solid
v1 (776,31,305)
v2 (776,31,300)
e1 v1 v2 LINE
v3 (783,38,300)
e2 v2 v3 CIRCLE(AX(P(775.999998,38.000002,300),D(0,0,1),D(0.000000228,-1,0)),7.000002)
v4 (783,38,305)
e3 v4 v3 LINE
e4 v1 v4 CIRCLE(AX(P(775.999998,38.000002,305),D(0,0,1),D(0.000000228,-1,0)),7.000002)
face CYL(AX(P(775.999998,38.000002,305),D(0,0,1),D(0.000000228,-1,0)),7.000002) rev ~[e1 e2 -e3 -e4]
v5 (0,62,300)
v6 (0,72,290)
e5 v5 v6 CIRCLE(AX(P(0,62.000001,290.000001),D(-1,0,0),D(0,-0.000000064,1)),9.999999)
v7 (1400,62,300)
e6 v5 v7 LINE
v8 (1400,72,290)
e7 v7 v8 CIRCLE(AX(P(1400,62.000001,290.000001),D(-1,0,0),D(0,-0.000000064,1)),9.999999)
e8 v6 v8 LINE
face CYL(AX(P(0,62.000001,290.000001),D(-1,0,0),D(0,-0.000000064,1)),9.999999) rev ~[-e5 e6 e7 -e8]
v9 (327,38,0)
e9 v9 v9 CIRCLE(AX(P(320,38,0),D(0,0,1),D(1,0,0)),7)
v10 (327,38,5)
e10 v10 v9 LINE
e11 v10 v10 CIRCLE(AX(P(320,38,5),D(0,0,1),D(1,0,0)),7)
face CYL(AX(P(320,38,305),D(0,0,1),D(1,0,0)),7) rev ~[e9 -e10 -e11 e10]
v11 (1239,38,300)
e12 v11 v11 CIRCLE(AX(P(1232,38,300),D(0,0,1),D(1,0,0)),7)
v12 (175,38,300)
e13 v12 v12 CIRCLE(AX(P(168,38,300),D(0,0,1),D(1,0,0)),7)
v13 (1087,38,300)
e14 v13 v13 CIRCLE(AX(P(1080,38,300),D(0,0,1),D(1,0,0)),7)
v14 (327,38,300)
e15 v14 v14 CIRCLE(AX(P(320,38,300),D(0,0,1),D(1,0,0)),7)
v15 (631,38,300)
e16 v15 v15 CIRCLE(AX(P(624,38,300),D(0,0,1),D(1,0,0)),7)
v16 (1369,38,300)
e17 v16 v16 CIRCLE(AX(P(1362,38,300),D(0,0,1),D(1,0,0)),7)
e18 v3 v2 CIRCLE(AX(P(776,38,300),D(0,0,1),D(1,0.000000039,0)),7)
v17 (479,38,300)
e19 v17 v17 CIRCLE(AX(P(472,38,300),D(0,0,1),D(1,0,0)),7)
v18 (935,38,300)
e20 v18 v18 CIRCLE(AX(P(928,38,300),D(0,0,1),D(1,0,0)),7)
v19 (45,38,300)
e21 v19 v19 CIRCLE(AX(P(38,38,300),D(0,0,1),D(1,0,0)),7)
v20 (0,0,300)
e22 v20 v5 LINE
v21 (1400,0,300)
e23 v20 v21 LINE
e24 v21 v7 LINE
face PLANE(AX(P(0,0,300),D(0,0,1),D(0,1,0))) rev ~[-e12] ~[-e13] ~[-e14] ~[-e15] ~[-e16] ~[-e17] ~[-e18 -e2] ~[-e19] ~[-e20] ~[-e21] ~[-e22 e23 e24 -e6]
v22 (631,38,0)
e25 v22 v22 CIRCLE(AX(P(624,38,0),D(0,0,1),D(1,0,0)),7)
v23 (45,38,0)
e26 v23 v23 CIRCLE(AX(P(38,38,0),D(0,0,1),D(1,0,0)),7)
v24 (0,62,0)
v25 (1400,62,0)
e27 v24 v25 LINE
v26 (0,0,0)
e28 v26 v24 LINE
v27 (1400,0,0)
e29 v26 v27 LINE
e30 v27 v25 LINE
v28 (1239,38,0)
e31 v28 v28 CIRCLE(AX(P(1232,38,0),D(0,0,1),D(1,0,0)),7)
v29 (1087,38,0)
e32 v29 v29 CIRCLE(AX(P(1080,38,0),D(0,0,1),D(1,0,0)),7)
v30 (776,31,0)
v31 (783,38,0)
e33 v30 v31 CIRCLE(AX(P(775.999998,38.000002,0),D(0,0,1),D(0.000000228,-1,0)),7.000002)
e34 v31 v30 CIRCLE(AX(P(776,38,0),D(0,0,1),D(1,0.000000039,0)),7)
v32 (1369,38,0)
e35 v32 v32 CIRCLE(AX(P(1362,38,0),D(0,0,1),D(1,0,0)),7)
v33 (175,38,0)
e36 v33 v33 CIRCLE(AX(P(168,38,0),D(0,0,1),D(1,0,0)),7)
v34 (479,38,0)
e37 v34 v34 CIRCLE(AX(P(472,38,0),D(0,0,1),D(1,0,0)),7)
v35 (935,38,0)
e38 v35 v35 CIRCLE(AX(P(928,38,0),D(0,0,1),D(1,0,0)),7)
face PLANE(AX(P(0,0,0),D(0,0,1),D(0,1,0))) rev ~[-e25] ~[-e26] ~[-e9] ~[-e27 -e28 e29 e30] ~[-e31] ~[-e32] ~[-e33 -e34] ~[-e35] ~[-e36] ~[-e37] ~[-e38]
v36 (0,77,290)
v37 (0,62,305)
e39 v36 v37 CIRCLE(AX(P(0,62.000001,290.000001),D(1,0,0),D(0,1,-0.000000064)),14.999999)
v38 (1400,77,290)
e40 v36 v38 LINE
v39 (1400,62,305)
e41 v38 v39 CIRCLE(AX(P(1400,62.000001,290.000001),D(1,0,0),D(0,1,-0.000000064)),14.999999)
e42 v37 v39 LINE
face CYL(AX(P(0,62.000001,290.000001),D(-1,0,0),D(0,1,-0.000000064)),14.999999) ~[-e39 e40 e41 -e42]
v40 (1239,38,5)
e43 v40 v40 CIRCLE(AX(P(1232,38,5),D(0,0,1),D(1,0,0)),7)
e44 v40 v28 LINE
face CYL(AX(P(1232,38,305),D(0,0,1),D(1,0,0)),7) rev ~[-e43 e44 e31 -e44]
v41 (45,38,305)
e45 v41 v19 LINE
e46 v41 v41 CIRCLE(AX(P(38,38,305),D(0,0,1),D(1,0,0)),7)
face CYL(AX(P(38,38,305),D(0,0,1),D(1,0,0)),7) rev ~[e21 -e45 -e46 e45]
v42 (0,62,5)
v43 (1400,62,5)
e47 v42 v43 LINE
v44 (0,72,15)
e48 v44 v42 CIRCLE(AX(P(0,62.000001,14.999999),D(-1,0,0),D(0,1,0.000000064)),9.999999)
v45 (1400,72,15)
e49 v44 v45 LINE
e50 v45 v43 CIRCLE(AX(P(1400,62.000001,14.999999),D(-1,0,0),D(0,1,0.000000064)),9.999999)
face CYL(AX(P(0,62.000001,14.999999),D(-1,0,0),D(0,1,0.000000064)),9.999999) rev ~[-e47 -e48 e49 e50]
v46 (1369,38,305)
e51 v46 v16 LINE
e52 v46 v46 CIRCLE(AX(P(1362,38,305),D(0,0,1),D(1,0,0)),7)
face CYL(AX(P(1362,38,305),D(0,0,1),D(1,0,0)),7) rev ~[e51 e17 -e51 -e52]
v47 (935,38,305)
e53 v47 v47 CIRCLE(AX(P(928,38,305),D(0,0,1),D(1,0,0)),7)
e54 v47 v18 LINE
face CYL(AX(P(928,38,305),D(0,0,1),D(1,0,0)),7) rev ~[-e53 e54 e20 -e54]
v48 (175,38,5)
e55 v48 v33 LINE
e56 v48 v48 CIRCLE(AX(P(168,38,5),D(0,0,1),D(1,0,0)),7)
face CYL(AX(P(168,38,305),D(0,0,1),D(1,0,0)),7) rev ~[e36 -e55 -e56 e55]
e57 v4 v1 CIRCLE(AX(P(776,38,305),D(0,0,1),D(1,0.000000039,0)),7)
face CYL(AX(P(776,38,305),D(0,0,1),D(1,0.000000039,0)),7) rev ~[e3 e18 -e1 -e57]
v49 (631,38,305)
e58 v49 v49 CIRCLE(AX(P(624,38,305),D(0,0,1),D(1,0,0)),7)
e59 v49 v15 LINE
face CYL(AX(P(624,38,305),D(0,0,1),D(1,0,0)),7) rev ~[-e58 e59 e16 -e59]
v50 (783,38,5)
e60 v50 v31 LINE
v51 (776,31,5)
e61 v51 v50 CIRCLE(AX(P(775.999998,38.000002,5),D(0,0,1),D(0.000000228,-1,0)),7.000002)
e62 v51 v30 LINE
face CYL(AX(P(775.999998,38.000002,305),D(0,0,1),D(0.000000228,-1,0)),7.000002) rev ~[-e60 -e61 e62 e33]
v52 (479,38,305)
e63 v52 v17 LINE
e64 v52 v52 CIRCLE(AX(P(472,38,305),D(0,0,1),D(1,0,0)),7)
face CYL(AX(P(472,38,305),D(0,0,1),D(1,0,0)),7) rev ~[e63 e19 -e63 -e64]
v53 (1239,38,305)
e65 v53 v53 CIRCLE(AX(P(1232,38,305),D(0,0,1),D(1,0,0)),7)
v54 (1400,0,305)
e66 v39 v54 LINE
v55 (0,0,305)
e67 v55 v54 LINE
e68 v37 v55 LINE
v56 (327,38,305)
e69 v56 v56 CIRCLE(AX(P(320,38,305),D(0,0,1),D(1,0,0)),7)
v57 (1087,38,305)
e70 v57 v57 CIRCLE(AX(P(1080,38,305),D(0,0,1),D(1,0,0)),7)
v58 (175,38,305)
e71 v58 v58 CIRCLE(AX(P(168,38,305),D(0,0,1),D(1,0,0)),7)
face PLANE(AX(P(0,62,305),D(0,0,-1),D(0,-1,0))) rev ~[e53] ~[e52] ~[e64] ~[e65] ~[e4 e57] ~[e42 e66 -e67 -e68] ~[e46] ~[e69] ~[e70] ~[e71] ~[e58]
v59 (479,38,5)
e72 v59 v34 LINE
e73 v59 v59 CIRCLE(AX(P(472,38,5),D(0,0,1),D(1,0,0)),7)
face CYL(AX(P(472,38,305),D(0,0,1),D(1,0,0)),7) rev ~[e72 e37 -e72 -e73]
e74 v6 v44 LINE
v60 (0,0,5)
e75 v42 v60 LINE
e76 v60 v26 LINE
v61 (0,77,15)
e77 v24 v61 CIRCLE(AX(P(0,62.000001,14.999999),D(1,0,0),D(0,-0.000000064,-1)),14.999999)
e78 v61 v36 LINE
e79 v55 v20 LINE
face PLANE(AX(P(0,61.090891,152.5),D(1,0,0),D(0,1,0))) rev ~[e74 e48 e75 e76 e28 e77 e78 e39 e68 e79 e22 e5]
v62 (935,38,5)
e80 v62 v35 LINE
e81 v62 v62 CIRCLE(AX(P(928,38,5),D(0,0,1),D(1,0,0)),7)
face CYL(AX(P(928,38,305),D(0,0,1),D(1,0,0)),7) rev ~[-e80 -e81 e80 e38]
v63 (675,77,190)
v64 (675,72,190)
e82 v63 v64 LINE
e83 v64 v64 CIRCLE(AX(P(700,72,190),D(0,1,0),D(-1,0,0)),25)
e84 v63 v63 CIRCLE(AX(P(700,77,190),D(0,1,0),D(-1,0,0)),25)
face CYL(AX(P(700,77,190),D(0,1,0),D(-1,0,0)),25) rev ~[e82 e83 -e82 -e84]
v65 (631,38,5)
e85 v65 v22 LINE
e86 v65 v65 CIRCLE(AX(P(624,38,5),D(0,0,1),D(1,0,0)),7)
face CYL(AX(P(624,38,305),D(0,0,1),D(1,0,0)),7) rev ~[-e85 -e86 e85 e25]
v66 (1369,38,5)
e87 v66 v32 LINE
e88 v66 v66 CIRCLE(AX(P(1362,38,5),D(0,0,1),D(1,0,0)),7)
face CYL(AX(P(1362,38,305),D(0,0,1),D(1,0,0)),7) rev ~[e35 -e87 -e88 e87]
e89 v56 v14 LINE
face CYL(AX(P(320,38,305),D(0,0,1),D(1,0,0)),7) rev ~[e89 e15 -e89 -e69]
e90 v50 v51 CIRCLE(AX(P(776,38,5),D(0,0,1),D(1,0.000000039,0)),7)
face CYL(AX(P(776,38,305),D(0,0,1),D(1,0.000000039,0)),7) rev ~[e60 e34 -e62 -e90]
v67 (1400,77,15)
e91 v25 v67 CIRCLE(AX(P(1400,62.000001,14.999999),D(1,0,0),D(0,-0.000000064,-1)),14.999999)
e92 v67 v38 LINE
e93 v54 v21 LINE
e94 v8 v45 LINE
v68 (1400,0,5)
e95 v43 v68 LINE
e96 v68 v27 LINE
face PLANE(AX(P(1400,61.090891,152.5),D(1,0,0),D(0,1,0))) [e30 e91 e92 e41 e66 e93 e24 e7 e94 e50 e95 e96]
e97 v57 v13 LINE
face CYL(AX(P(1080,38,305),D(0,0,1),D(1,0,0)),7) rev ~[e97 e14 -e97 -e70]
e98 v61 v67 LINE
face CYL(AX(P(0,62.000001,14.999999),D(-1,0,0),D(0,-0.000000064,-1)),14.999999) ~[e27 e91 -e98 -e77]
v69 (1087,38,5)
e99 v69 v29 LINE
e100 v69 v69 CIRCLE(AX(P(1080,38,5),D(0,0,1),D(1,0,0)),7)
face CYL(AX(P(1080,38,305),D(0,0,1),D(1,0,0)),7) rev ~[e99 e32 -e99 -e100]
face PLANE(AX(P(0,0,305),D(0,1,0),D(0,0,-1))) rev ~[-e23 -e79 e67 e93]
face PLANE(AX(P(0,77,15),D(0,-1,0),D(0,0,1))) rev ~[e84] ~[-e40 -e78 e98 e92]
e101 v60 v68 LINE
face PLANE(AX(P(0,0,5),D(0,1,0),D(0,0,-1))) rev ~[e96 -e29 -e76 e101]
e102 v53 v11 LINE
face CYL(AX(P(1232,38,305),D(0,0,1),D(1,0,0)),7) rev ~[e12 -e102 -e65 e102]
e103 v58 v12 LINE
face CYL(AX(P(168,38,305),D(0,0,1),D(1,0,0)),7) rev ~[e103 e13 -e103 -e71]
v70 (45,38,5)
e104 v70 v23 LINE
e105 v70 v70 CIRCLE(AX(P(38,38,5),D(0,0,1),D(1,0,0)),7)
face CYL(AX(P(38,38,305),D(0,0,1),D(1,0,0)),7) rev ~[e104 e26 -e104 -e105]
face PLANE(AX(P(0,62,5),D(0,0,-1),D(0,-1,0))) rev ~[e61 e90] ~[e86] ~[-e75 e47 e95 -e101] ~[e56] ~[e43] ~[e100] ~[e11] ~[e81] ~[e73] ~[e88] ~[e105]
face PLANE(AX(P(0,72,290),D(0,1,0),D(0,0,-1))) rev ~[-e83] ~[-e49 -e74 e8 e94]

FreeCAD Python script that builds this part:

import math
import FreeCAD as App
import Part
import Sketcher
from FreeCAD import Vector
Q = App.Units.Quantity

doc = App.newDocument("Part")
body = doc.addObject("PartDesign::Body", "Body")

sketch1 = body.newObject("Sketcher::SketchObject", "Sketch")
sketch1.AttachmentSupport = (doc.getObject("YZ_Plane"), [""])
sketch1.MapMode = "FlatFace"
sketch1.addGeometry([
    Part.LineSegment(Vector(0, 5, 0), Vector(0, 0, 0)),
    Part.LineSegment(Vector(0, 0, 0), Vector(62, 0, 0)),
    Part.ArcOfCircle(Part.Circle(Vector(62.000001, 14.999999, 0), Vector(0, 0, 1), 14.999999), math.radians(-90.000004), math.radians(0.000004)),
    Part.LineSegment(Vector(77, 15, 0), Vector(77, 290, 0)),
    Part.ArcOfCircle(Part.Circle(Vector(62.000001, 290.000001, 0), Vector(0, 0, 1), 14.999999), math.radians(-0.000004), math.radians(90.000004)),
    Part.LineSegment(Vector(62, 305, 0), Vector(0, 305, 0)),
    Part.LineSegment(Vector(0, 305, 0), Vector(0, 300, 0)),
    Part.LineSegment(Vector(0, 300, 0), Vector(62, 300, 0)),
    Part.ArcOfCircle(Part.Circle(Vector(62.000001, 290.000001, 0), Vector(0, 0, 1), 9.999999), math.radians(-0.000004), math.radians(90.000004)),
    Part.LineSegment(Vector(72, 290, 0), Vector(72, 15, 0)),
    Part.ArcOfCircle(Part.Circle(Vector(62.000001, 14.999999, 0), Vector(0, 0, 1), 9.999999), math.radians(-90.000004), math.radians(0.000004)),
    Part.LineSegment(Vector(62, 5, 0), Vector(0, 5, 0)),
], False)
sketch1.addConstraint([
    Sketcher.Constraint("Coincident", 0, 2, 1, 1),
    Sketcher.Constraint("Tangent", 1, 2, 2, 1),
    Sketcher.Constraint("Tangent", 2, 2, 3, 1),
    Sketcher.Constraint("Tangent", 3, 2, 4, 1),
    Sketcher.Constraint("Tangent", 4, 2, 5, 1),
    Sketcher.Constraint("Coincident", 5, 2, 6, 1),
    Sketcher.Constraint("Coincident", 6, 2, 7, 1),
    Sketcher.Constraint("Tangent", 7, 2, 8, 2),
    Sketcher.Constraint("Tangent", 8, 1, 9, 1),
    Sketcher.Constraint("Tangent", 9, 2, 10, 2),
    Sketcher.Constraint("Tangent", 10, 1, 11, 1),
    Sketcher.Constraint("Coincident", 11, 2, 0, 1),
    Sketcher.Constraint("Vertical", 0),
    Sketcher.Constraint("Horizontal", 1),
    Sketcher.Constraint("Vertical", 3),
    Sketcher.Constraint("Horizontal", 5),
    Sketcher.Constraint("Vertical", 6),
    Sketcher.Constraint("Horizontal", 7),
    Sketcher.Constraint("Vertical", 9),
    Sketcher.Constraint("Horizontal", 11),
    Sketcher.Constraint("Coincident", 0, 2, -1, 1),
    Sketcher.Constraint("Coincident", 8, 3, 4, 3),
    Sketcher.Constraint("Coincident", 10, 3, 2, 3),
    Sketcher.Constraint("Equal", 2, 4),
    Sketcher.Constraint("PointOnObject", 5, 2, -2),
    Sketcher.Constraint("Radius", 2, Q("14.999999 mm")),
    Sketcher.Constraint("Radius", 8, Q("9.999999 mm")),
    Sketcher.Constraint("DistanceX", 1, 1, 1, 2, Q("62 mm")),
    Sketcher.Constraint("DistanceY", 3, 1, 3, 2, Q("275 mm")),
])
pad1 = body.newObject("PartDesign::Pad", "Pad")
pad1.Profile = sketch1
pad1.Length = 1400

sketch2 = body.newObject("Sketcher::SketchObject", "Sketch001")
sketch2.AttachmentSupport = (doc.getObject("XZ_Plane"), [""])
sketch2.MapMode = "FlatFace"
sketch2.AttachmentOffset = App.Placement(Vector(0, 0, -77), App.Rotation())
sketch2.addGeometry(Part.Circle(Vector(700, 190, 0), Vector(0, 0, 1), 25), False)
sketch2.addConstraint([
    Sketcher.Constraint("Diameter", 0, Q("50 mm")),
    Sketcher.Constraint("DistanceX", -1, 1, 0, 3, Q("700 mm")),
    Sketcher.Constraint("DistanceY", -1, 1, 0, 3, Q("190 mm")),
])
pocket1 = body.newObject("PartDesign::Pocket", "Pocket")
pocket1.Profile = sketch2
pocket1.Type = "ThroughAll"
pocket1.Reversed = True

sketch3 = body.newObject("Sketcher::SketchObject", "Sketch002")
sketch3.AttachmentSupport = (doc.getObject("XY_Plane"), [""])
sketch3.MapMode = "FlatFace"
sketch3.AttachmentOffset = App.Placement(Vector(0, 0, 305), App.Rotation())
sketch3.addGeometry([
    Part.ArcOfCircle(Part.Circle(Vector(776, 38, 0), Vector(0, 0, 1), 7), math.radians(0.000002), math.radians(269.999998)),
    Part.ArcOfCircle(Part.Circle(Vector(775.999998, 38.000002, 0), Vector(0, 0, 1), 7.000002), math.radians(-89.999987), math.radians(-0.000013)),
    Part.Circle(Vector(928, 38, 0), Vector(0, 0, 1), 7),
    Part.Circle(Vector(1080, 38, 0), Vector(0, 0, 1), 7),
    Part.Circle(Vector(1232, 38, 0), Vector(0, 0, 1), 7),
    Part.Circle(Vector(1362, 38, 0), Vector(0, 0, 1), 7),
], False)
sketch3.addConstraint([
    Sketcher.Constraint("Tangent", 0, 1, 1, 2),
    Sketcher.Constraint("Coincident", 1, 1, 0, 2),
    Sketcher.Constraint("Equal", 1, 2),
    Sketcher.Constraint("Equal", 2, 3),
    Sketcher.Constraint("Equal", 3, 4),
    Sketcher.Constraint("Equal", 4, 5),
    Sketcher.Constraint("Horizontal", 1, 3, 2, 3),
    Sketcher.Constraint("Horizontal", 2, 3, 3, 3),
    Sketcher.Constraint("Horizontal", 3, 3, 4, 3),
    Sketcher.Constraint("Horizontal", 4, 3, 5, 3),
    Sketcher.Constraint("Horizontal", 5, 3, 0, 1),
    Sketcher.Constraint("Vertical", 0, 3, 1, 1),
    Sketcher.Constraint("Diameter", 2, Q("14 mm")),
    Sketcher.Constraint("DistanceX", -1, 1, 0, 3, Q("776 mm")),
    Sketcher.Constraint("DistanceY", -1, 1, 0, 3, Q("38 mm")),
    Sketcher.Constraint("DistanceX", -1, 1, 2, 3, Q("928 mm")),
    Sketcher.Constraint("DistanceX", -1, 1, 3, 3, Q("1080 mm")),
    Sketcher.Constraint("DistanceX", -1, 1, 4, 3, Q("1232 mm")),
    Sketcher.Constraint("DistanceX", -1, 1, 5, 3, Q("1362 mm")),
])
pocket2 = body.newObject("PartDesign::Pocket", "Pocket001")
pocket2.Profile = sketch3
pocket2.Type = "ThroughAll"

sketch4 = body.newObject("Sketcher::SketchObject", "Sketch003")
sketch4.AttachmentSupport = (doc.getObject("XY_Plane"), [""])
sketch4.MapMode = "FlatFace"
sketch4.AttachmentOffset = App.Placement(Vector(0, 0, 305), App.Rotation())
sketch4.addGeometry([
    Part.ArcOfCircle(Part.Circle(Vector(775.999998, 38.000002, 0), Vector(0, 0, 1), 7.000002), math.radians(-89.999987), math.radians(-0.000013)),
    Part.ArcOfCircle(Part.Circle(Vector(776, 38, 0), Vector(0, 0, 1), 7), math.radians(0.000002), math.radians(269.999998)),
    Part.Circle(Vector(928, 38, 0), Vector(0, 0, 1), 7),
    Part.Circle(Vector(1080, 38, 0), Vector(0, 0, 1), 7),
    Part.Circle(Vector(1232, 38, 0), Vector(0, 0, 1), 7),
    Part.Circle(Vector(1362, 38, 0), Vector(0, 0, 1), 7),
    Part.Circle(Vector(624, 38, 0), Vector(0, 0, 1), 7),
    Part.Circle(Vector(472, 38, 0), Vector(0, 0, 1), 7),
    Part.Circle(Vector(320, 38, 0), Vector(0, 0, 1), 7),
    Part.Circle(Vector(168, 38, 0), Vector(0, 0, 1), 7),
    Part.Circle(Vector(38, 38, 0), Vector(0, 0, 1), 7),
], False)
sketch4.addConstraint([
    Sketcher.Constraint("Tangent", 0, 1, 1, 2),
    Sketcher.Constraint("Coincident", 1, 1, 0, 2),
    Sketcher.Constraint("Equal", 1, 2),
    Sketcher.Constraint("Equal", 2, 3),
    Sketcher.Constraint("Equal", 3, 4),
    Sketcher.Constraint("Equal", 4, 5),
    Sketcher.Constraint("Equal", 5, 6),
    Sketcher.Constraint("Equal", 6, 7),
    Sketcher.Constraint("Equal", 7, 8),
    Sketcher.Constraint("Equal", 8, 9),
    Sketcher.Constraint("Equal", 9, 10),
    Sketcher.Constraint("Horizontal", 1, 3, 2, 3),
    Sketcher.Constraint("Horizontal", 2, 3, 3, 3),
    Sketcher.Constraint("Horizontal", 3, 3, 4, 3),
    Sketcher.Constraint("Horizontal", 4, 3, 5, 3),
    Sketcher.Constraint("Horizontal", 5, 3, 6, 3),
    Sketcher.Constraint("Horizontal", 6, 3, 7, 3),
    Sketcher.Constraint("Horizontal", 7, 3, 8, 3),
    Sketcher.Constraint("Horizontal", 8, 3, 9, 3),
    Sketcher.Constraint("Horizontal", 9, 3, 10, 3),
    Sketcher.Constraint("Horizontal", 10, 3, 1, 1),
    Sketcher.Constraint("Vertical", 1, 3, 0, 1),
    Sketcher.Constraint("Diameter", 2, Q("14 mm")),
    Sketcher.Constraint("DistanceX", -1, 1, 0, 3, Q("775.999998 mm")),
    Sketcher.Constraint("DistanceY", -1, 1, 0, 3, Q("38.000002 mm")),
    Sketcher.Constraint("DistanceX", -1, 1, 2, 3, Q("928 mm")),
    Sketcher.Constraint("DistanceX", -1, 1, 3, 3, Q("1080 mm")),
    Sketcher.Constraint("DistanceX", -1, 1, 4, 3, Q("1232 mm")),
    Sketcher.Constraint("DistanceX", -1, 1, 5, 3, Q("1362 mm")),
    Sketcher.Constraint("DistanceX", -1, 1, 6, 3, Q("624 mm")),
    Sketcher.Constraint("DistanceX", -1, 1, 7, 3, Q("472 mm")),
    Sketcher.Constraint("DistanceX", -1, 1, 8, 3, Q("320 mm")),
    Sketcher.Constraint("DistanceX", -1, 1, 9, 3, Q("168 mm")),
    Sketcher.Constraint("DistanceX", -1, 1, 10, 3, Q("38 mm")),
])
pocket3 = body.newObject("PartDesign::Pocket", "Pocket002")
pocket3.Profile = sketch4
pocket3.Type = "ThroughAll"

doc.recompute()
